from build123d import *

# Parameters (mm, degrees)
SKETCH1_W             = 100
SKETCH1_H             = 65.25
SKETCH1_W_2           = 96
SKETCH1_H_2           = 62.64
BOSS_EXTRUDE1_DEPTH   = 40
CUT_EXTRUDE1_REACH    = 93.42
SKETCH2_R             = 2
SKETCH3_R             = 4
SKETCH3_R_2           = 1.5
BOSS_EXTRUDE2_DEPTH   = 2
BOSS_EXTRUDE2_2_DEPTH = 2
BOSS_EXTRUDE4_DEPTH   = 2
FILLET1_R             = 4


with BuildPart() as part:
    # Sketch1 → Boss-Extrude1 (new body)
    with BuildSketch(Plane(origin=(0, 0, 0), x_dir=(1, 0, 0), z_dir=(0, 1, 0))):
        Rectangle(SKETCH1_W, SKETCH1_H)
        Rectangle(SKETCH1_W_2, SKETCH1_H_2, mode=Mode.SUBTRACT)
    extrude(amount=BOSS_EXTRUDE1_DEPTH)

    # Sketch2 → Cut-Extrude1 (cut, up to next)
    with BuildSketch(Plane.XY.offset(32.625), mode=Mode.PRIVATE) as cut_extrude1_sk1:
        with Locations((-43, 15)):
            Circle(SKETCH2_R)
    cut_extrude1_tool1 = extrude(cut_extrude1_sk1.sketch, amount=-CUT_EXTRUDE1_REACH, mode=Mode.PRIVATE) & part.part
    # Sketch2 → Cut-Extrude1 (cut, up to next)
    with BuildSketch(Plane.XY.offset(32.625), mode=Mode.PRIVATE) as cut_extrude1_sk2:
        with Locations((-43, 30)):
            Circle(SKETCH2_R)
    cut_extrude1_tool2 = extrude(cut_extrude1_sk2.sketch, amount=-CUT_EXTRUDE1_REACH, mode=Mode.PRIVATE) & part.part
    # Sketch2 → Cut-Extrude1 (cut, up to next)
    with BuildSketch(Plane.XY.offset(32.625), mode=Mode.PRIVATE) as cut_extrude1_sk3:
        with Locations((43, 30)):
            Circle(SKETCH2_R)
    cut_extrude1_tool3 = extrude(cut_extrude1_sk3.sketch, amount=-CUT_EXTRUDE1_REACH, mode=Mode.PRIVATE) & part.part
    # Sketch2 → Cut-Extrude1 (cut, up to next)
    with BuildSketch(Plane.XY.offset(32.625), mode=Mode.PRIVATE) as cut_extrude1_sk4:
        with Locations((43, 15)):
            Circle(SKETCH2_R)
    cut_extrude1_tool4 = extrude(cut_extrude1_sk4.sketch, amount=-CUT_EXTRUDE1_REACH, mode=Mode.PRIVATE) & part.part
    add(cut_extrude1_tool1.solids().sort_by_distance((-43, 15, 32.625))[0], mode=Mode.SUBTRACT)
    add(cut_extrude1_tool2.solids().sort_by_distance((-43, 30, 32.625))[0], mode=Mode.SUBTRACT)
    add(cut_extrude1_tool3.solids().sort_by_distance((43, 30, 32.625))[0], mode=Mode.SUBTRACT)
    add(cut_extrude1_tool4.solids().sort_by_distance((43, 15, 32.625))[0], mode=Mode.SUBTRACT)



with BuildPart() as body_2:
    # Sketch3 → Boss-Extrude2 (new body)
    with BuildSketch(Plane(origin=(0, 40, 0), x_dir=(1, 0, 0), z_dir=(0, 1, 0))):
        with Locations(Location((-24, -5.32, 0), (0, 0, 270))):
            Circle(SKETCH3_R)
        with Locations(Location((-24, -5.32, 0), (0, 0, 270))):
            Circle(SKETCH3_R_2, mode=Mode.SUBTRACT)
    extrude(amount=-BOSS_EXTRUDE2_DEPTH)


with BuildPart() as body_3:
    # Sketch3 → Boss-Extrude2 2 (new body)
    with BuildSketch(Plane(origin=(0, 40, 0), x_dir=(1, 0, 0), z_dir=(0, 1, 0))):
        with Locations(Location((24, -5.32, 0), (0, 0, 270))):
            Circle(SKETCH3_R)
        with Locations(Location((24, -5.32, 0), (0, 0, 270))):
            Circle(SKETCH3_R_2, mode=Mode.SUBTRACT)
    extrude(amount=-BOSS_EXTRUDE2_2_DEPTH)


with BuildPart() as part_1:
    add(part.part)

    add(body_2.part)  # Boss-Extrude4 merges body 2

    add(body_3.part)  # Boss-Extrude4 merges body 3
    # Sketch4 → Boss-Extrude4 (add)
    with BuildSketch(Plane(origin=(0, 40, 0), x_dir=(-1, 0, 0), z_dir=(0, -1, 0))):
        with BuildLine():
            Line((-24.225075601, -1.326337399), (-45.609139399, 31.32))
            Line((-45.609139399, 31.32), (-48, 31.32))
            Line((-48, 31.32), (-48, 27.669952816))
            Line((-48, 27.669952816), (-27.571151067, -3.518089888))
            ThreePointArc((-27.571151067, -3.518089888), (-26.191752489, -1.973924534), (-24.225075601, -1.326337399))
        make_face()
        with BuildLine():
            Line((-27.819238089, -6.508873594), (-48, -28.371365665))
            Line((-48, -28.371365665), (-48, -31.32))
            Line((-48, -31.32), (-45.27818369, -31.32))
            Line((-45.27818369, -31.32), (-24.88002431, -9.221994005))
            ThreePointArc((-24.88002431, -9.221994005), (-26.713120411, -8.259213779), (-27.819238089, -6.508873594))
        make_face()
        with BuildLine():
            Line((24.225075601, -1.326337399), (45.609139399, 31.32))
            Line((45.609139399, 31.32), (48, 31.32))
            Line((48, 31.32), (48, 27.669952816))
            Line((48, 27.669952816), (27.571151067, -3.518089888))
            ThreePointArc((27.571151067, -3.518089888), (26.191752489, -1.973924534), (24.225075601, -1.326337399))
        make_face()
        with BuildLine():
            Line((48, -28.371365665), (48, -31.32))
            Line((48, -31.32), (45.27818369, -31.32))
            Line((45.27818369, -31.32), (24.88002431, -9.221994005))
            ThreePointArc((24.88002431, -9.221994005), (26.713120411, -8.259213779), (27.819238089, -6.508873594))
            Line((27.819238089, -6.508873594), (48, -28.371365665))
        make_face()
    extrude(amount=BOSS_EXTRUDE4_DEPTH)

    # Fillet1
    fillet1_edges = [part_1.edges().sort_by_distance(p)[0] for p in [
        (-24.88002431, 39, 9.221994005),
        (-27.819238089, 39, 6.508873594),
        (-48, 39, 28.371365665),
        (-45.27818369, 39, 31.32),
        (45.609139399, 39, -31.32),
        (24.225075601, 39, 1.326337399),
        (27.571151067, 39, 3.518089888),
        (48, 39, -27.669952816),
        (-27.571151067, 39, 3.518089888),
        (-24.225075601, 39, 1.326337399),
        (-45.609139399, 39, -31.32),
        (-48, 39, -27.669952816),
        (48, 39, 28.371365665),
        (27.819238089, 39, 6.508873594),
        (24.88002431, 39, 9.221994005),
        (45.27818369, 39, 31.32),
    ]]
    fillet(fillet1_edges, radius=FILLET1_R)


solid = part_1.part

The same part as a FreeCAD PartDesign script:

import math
import FreeCAD as App
import Part
import Sketcher

V = App.Vector


def edges_at(feature, points):
    """Names of the edges that pass closest to the given points."""
    edges = feature.Shape.Edges
    near = lambda p: min(range(len(edges)), key=lambda i: edges[i].distToShape(Part.Vertex(*p))[0])
    return sorted({f"Edge{near(p) + 1}" for p in points})

doc = App.newDocument("Part")
body = doc.addObject("PartDesign::Body", "Body")

sketch1 = doc.addObject("Sketcher::SketchObject", "Sketch")
body.addObject(sketch1)
sketch1.AttachmentSupport = (doc.XZ_Plane, [""])
sketch1.MapMode = "FlatFace"
sketch1.addGeometry([
    Part.LineSegment(V(-50, -32.625, 0), V(-50, 32.625, 0)),
    Part.LineSegment(V(-50, 32.625, 0), V(50, 32.625, 0)),
    Part.LineSegment(V(50, 32.625, 0), V(50, -32.625, 0)),
    Part.LineSegment(V(50, -32.625, 0), V(-50, -32.625, 0)),
    Part.LineSegment(V(48, 31.32, 0), V(-48, 31.32, 0)),
    Part.LineSegment(V(-48, 31.32, 0), V(-48, -31.32, 0)),
    Part.LineSegment(V(-48, -31.32, 0), V(48, -31.32, 0)),
    Part.LineSegment(V(48, -31.32, 0), V(48, 31.32, 0)),
], False)
sketch1.addConstraint([
    Sketcher.Constraint("Coincident", 0, 2, 1, 1),
    Sketcher.Constraint("Coincident", 1, 2, 2, 1),
    Sketcher.Constraint("Coincident", 2, 2, 3, 1),
    Sketcher.Constraint("Coincident", 3, 2, 0, 1),
    Sketcher.Constraint("Coincident", 4, 2, 5, 1),
    Sketcher.Constraint("Coincident", 5, 2, 6, 1),
    Sketcher.Constraint("Coincident", 6, 2, 7, 1),
    Sketcher.Constraint("Coincident", 7, 2, 4, 1),
    Sketcher.Constraint("Vertical", 0),
    Sketcher.Constraint("Horizontal", 1),
    Sketcher.Constraint("Vertical", 2),
    Sketcher.Constraint("Horizontal", 3),
    Sketcher.Constraint("Horizontal", 4),
    Sketcher.Constraint("Vertical", 5),
    Sketcher.Constraint("Horizontal", 6),
    Sketcher.Constraint("Vertical", 7),
    Sketcher.Constraint("Symmetric", 0, 2, 2, 2, -1, 1),
    Sketcher.Constraint("Symmetric", 4, 2, 6, 2, -1, 1),
    Sketcher.Constraint("DistanceX", 1, 1, 1, 2, 100.0),
    Sketcher.Constraint("DistanceX", 4, 2, 4, 1, 96.0),
    Sketcher.Constraint("DistanceY", 0, 1, 0, 2, 65.25),
    Sketcher.Constraint("DistanceY", 5, 2, 5, 1, 62.64),
])
pad1 = doc.addObject("PartDesign::Pad", "Pad")
body.addObject(pad1)
pad1.Profile = sketch1
pad1.Length = 40
pad1.Reversed = True

sketch2 = doc.addObject("Sketcher::SketchObject", "Sketch001")
body.addObject(sketch2)
sketch2.AttachmentSupport = (doc.XY_Plane, [""])
sketch2.MapMode = "FlatFace"
sketch2.AttachmentOffset = App.Placement(V(0, 0, 32.625), App.Rotation())
sketch2.addGeometry(Part.Circle(V(-43, 15, 0), V(0, 0, 1), 2), False)
sketch2.addConstraint([
    Sketcher.Constraint("Diameter", 0, 4.0),
    Sketcher.Constraint("DistanceX", 0, 3, -1, 1, 43.0),
    Sketcher.Constraint("DistanceY", -1, 1, 0, 3, 15.0),
])
pocket1 = doc.addObject("PartDesign::Pocket", "Pocket")
body.addObject(pocket1)
pocket1.Profile = sketch2
pocket1.Type = "UpToFirst"

sketch3 = doc.addObject("Sketcher::SketchObject", "Sketch002")
body.addObject(sketch3)
sketch3.AttachmentSupport = (doc.XY_Plane, [""])
sketch3.MapMode = "FlatFace"
sketch3.AttachmentOffset = App.Placement(V(0, 0, 32.625), App.Rotation())
sketch3.addGeometry(Part.Circle(V(-43, 30, 0), V(0, 0, 1), 2), False)
sketch3.addConstraint([
    Sketcher.Constraint("Diameter", 0, 4.0),
    Sketcher.Constraint("DistanceX", 0, 3, -1, 1, 43.0),
    Sketcher.Constraint("DistanceY", -1, 1, 0, 3, 30.0),
])
pocket2 = doc.addObject("PartDesign::Pocket", "Pocket001")
body.addObject(pocket2)
pocket2.Profile = sketch3
pocket2.Type = "UpToFirst"

sketch4 = doc.addObject("Sketcher::SketchObject", "Sketch003")
body.addObject(sketch4)
sketch4.AttachmentSupport = (doc.XY_Plane, [""])
sketch4.MapMode = "FlatFace"
sketch4.AttachmentOffset = App.Placement(V(0, 0, 32.625), App.Rotation())
sketch4.addGeometry(Part.Circle(V(43, 30, 0), V(0, 0, 1), 2), False)
sketch4.addConstraint([
    Sketcher.Constraint("Diameter", 0, 4.0),
    Sketcher.Constraint("DistanceX", -1, 1, 0, 3, 43.0),
    Sketcher.Constraint("DistanceY", -1, 1, 0, 3, 30.0),
])
pocket3 = doc.addObject("PartDesign::Pocket", "Pocket002")
body.addObject(pocket3)
pocket3.Profile = sketch4
pocket3.Type = "UpToFirst"

sketch5 = doc.addObject("Sketcher::SketchObject", "Sketch004")
body.addObject(sketch5)
sketch5.AttachmentSupport = (doc.XY_Plane, [""])
sketch5.MapMode = "FlatFace"
sketch5.AttachmentOffset = App.Placement(V(0, 0, 32.625), App.Rotation())
sketch5.addGeometry(Part.Circle(V(43, 15, 0), V(0, 0, 1), 2), False)
sketch5.addConstraint([
    Sketcher.Constraint("Diameter", 0, 4.0),
    Sketcher.Constraint("DistanceX", -1, 1, 0, 3, 43.0),
    Sketcher.Constraint("DistanceY", -1, 1, 0, 3, 15.0),
])
pocket4 = doc.addObject("PartDesign::Pocket", "Pocket003")
body.addObject(pocket4)
pocket4.Profile = sketch5
pocket4.Type = "UpToFirst"
body2 = doc.addObject("PartDesign::Body", "Body001")

sketch6 = doc.addObject("Sketcher::SketchObject", "Sketch005")
body2.addObject(sketch6)
sketch6.AttachmentSupport = (doc.getObject("XZ_Plane001"), [""])
sketch6.MapMode = "FlatFace"
sketch6.AttachmentOffset = App.Placement(V(0, 0, -40), App.Rotation())
sketch6.addGeometry([
    Part.Circle(V(-24, 5.32, 0), V(0, 0, 1), 4),
    Part.Circle(V(-24, 5.32, 0), V(0, 0, 1), 1.5),
], False)
sketch6.addConstraint([
    Sketcher.Constraint("Coincident", 1, 3, 0, 3),
    Sketcher.Constraint("Diameter", 0, 8.0),
    Sketcher.Constraint("Diameter", 1, 3.0),
    Sketcher.Constraint("DistanceX", 0, 3, -1, 1, 24.0),
    Sketcher.Constraint("DistanceY", -1, 1, 0, 3, 5.32),
])
pad2 = doc.addObject("PartDesign::Pad", "Pad001")
body2.addObject(pad2)
pad2.Profile = sketch6
pad2.Length = 2
body3 = doc.addObject("PartDesign::Body", "Body002")

sketch7 = doc.addObject("Sketcher::SketchObject", "Sketch006")
body3.addObject(sketch7)
sketch7.AttachmentSupport = (doc.getObject("XZ_Plane002"), [""])
sketch7.MapMode = "FlatFace"
sketch7.AttachmentOffset = App.Placement(V(0, 0, -40), App.Rotation())
sketch7.addGeometry([
    Part.Circle(V(24, 5.32, 0), V(0, 0, 1), 4),
    Part.Circle(V(24, 5.32, 0), V(0, 0, 1), 1.5),
], False)
sketch7.addConstraint([
    Sketcher.Constraint("Coincident", 1, 3, 0, 3),
    Sketcher.Constraint("Diameter", 0, 8.0),
    Sketcher.Constraint("Diameter", 1, 3.0),
    Sketcher.Constraint("DistanceX", -1, 1, 0, 3, 24.0),
    Sketcher.Constraint("DistanceY", -1, 1, 0, 3, 5.32),
])
pad3 = doc.addObject("PartDesign::Pad", "Pad002")
body3.addObject(pad3)
pad3.Profile = sketch7
pad3.Length = 2
body.AllowCompound = True
doc.recompute()

boolean = doc.addObject("PartDesign::Boolean", "Boolean")
body.addObject(boolean)
boolean.Type = "Fuse"
boolean.addObjects([body2])
doc.recompute()

boolean2 = doc.addObject("PartDesign::Boolean", "Boolean001")
body.addObject(boolean2)
boolean2.Type = "Fuse"
boolean2.addObjects([body3])

sketch8 = doc.addObject("Sketcher::SketchObject", "Sketch007")
body.addObject(sketch8)
sketch8.AttachmentSupport = (doc.XZ_Plane, [""])
sketch8.MapMode = "FlatFace"
sketch8.AttachmentOffset = App.Placement(V(0, 0, -40), App.Rotation())
sketch8.addGeometry([
    Part.LineSegment(V(24.225076, 1.326337, 0), V(45.609139, -31.32, 0)),
    Part.LineSegment(V(45.609139, -31.32, 0), V(48, -31.32, 0)),
    Part.LineSegment(V(48, -31.32, 0), V(48, -27.669953, 0)),
    Part.LineSegment(V(48, -27.669953, 0), V(27.571151, 3.51809, 0)),
    Part.ArcOfCircle(Part.Circle(V(24, 5.32, 0), V(0, 0, 1), 4), math.radians(-86.774326), math.radians(-26.774326)),
    Part.LineSegment(V(27.819238, 6.508874, 0), V(48, 28.371366, 0)),
    Part.LineSegment(V(48, 28.371366, 0), V(48, 31.32, 0)),
    Part.LineSegment(V(48, 31.32, 0), V(45.278184, 31.32, 0)),
    Part.LineSegment(V(45.278184, 31.32, 0), V(24.880024, 9.221994, 0)),
    Part.ArcOfCircle(Part.Circle(V(24, 5.32, 0), V(0, 0, 1), 4), math.radians(17.29061), math.radians(77.29061)),
    Part.LineSegment(V(-45.609139, -31.32, 0), V(-24.225076, 1.326337, 0)),
    Part.ArcOfCircle(Part.Circle(V(-24, 5.32, 0), V(0, 0, 1), 4), math.radians(-153.225674), math.radians(-93.225674)),
    Part.LineSegment(V(-27.571151, 3.51809, 0), V(-48, -27.669953, 0)),
    Part.LineSegment(V(-48, -27.669953, 0), V(-48, -31.32, 0)),
    Part.LineSegment(V(-48, -31.32, 0), V(-45.609139, -31.32, 0)),
    Part.LineSegment(V(-48, 31.32, 0), V(-48, 28.371366, 0)),
    Part.LineSegment(V(-48, 28.371366, 0), V(-27.819238, 6.508874, 0)),
    Part.ArcOfCircle(Part.Circle(V(-24, 5.32, 0), V(0, 0, 1), 4), math.radians(102.70939), math.radians(162.70939)),
    Part.LineSegment(V(-24.880024, 9.221994, 0), V(-45.278184, 31.32, 0)),
    Part.LineSegment(V(-45.278184, 31.32, 0), V(-48, 31.32, 0)),
], False)
sketch8.addConstraint([
    Sketcher.Constraint("Coincident", 0, 2, 1, 1),
    Sketcher.Constraint("Coincident", 1, 2, 2, 1),
    Sketcher.Constraint("Coincident", 2, 2, 3, 1),
    Sketcher.Constraint("Coincident", 3, 2, 4, 2),
    Sketcher.Constraint("Coincident", 4, 1, 0, 1),
    Sketcher.Constraint("Coincident", 5, 2, 6, 1),
    Sketcher.Constraint("Coincident", 6, 2, 7, 1),
    Sketcher.Constraint("Coincident", 7, 2, 8, 1),
    Sketcher.Constraint("Coincident", 8, 2, 9, 2),
    Sketcher.Constraint("Coincident", 9, 1, 5, 1),
    Sketcher.Constraint("Coincident", 10, 2, 11, 2),
    Sketcher.Constraint("Coincident", 11, 1, 12, 1),
    Sketcher.Constraint("Coincident", 12, 2, 13, 1),
    Sketcher.Constraint("Coincident", 13, 2, 14, 1),
    Sketcher.Constraint("Coincident", 14, 2, 10, 1),
    Sketcher.Constraint("Coincident", 15, 2, 16, 1),
    Sketcher.Constraint("Coincident", 16, 2, 17, 2),
    Sketcher.Constraint("Coincident", 17, 1, 18, 1),
    Sketcher.Constraint("Coincident", 18, 2, 19, 1),
    Sketcher.Constraint("Coincident", 19, 2, 15, 1),
    Sketcher.Constraint("Horizontal", 1),
    Sketcher.Constraint("Vertical", 2),
    Sketcher.Constraint("Vertical", 6),
    Sketcher.Constraint("Horizontal", 7),
    Sketcher.Constraint("Vertical", 13),
    Sketcher.Constraint("Horizontal", 14),
    Sketcher.Constraint("Vertical", 15),
    Sketcher.Constraint("Horizontal", 19),
    Sketcher.Constraint("Coincident", 9, 3, 4, 3),
    Sketcher.Constraint("Coincident", 17, 3, 11, 3),
    Sketcher.Constraint("Equal", 4, 9),
    Sketcher.Constraint("Equal", 9, 11),
    Sketcher.Constraint("Equal", 11, 17),
    Sketcher.Constraint("Symmetric", 6, 2, 13, 2, -1, 1),
    Sketcher.Constraint("Symmetric", 1, 2, 19, 2, -1, 1),
    Sketcher.Constraint("Symmetric", 4, 3, 11, 3, -2),
    Sketcher.Constraint("Symmetric", 2, 2, 12, 2, -2),
    Sketcher.Constraint("Symmetric", 0, 2, 14, 2, -2),
    Sketcher.Constraint("Parallel", 0, 3),
    Sketcher.Constraint("Parallel", 5, 8),
    Sketcher.Constraint("Parallel", 10, 12),
    Sketcher.Constraint("Parallel", 16, 18),
    Sketcher.Constraint("Horizontal", 4, 1, 10, 2),
    Sketcher.Constraint("Horizontal", 5, 2, 15, 2),
    Sketcher.Constraint("Horizontal", 9, 1, 16, 2),
    Sketcher.Constraint("Horizontal", 8, 2, 17, 1),
    Sketcher.Constraint("Radius", 4, 4.0),
    Sketcher.Constraint("DistanceX", -1, 1, 4, 3, 24.0),
    Sketcher.Constraint("DistanceX", -1, 1, 1, 2, 48.0),
    Sketcher.Constraint("DistanceY", 9, 3, 6, 2, 26.0),
    Sketcher.Constraint("DistanceY", -1, 1, 4, 3, 5.32),
    Sketcher.Constraint("DistanceX", 1, 1, 1, 2, 2.390861),
    Sketcher.Constraint("Distance", 0, 39.026421),
    Sketcher.Constraint("Distance", 3, 37.283131),
    Sketcher.Constraint("DistanceX", 7, 2, 7, 1, 2.721816),
    Sketcher.Constraint("DistanceY", 6, 1, 6, 2, 2.948634),
    Sketcher.Constraint("DistanceX", -1, 1, 9, 1, 27.819238),
])
pad4 = doc.addObject("PartDesign::Pad", "Pad003")
body.addObject(pad4)
pad4.Profile = sketch8
pad4.Length = 2
doc.recompute()

fillet = doc.addObject("PartDesign::Fillet", "Fillet")
body.addObject(fillet)
fillet.Base = (pad4, edges_at(pad4, [
    (-24.88, 39, 9.222),
    (-27.819, 39, 6.509),
    (-48, 39, 28.371),
    (-45.278, 39, 31.32),
    (45.609, 39, -31.32),
    (24.225, 39, 1.326),
    (27.571, 39, 3.518),
    (48, 39, -27.67),
    (-27.571, 39, 3.518),
    (-24.225, 39, 1.326),
    (-45.609, 39, -31.32),
    (-48, 39, -27.67),
    (48, 39, 28.371),
    (27.819, 39, 6.509),
    (24.88, 39, 9.222),
    (45.278, 39, 31.32),
]))
fillet.Radius = 4

doc.recompute()
